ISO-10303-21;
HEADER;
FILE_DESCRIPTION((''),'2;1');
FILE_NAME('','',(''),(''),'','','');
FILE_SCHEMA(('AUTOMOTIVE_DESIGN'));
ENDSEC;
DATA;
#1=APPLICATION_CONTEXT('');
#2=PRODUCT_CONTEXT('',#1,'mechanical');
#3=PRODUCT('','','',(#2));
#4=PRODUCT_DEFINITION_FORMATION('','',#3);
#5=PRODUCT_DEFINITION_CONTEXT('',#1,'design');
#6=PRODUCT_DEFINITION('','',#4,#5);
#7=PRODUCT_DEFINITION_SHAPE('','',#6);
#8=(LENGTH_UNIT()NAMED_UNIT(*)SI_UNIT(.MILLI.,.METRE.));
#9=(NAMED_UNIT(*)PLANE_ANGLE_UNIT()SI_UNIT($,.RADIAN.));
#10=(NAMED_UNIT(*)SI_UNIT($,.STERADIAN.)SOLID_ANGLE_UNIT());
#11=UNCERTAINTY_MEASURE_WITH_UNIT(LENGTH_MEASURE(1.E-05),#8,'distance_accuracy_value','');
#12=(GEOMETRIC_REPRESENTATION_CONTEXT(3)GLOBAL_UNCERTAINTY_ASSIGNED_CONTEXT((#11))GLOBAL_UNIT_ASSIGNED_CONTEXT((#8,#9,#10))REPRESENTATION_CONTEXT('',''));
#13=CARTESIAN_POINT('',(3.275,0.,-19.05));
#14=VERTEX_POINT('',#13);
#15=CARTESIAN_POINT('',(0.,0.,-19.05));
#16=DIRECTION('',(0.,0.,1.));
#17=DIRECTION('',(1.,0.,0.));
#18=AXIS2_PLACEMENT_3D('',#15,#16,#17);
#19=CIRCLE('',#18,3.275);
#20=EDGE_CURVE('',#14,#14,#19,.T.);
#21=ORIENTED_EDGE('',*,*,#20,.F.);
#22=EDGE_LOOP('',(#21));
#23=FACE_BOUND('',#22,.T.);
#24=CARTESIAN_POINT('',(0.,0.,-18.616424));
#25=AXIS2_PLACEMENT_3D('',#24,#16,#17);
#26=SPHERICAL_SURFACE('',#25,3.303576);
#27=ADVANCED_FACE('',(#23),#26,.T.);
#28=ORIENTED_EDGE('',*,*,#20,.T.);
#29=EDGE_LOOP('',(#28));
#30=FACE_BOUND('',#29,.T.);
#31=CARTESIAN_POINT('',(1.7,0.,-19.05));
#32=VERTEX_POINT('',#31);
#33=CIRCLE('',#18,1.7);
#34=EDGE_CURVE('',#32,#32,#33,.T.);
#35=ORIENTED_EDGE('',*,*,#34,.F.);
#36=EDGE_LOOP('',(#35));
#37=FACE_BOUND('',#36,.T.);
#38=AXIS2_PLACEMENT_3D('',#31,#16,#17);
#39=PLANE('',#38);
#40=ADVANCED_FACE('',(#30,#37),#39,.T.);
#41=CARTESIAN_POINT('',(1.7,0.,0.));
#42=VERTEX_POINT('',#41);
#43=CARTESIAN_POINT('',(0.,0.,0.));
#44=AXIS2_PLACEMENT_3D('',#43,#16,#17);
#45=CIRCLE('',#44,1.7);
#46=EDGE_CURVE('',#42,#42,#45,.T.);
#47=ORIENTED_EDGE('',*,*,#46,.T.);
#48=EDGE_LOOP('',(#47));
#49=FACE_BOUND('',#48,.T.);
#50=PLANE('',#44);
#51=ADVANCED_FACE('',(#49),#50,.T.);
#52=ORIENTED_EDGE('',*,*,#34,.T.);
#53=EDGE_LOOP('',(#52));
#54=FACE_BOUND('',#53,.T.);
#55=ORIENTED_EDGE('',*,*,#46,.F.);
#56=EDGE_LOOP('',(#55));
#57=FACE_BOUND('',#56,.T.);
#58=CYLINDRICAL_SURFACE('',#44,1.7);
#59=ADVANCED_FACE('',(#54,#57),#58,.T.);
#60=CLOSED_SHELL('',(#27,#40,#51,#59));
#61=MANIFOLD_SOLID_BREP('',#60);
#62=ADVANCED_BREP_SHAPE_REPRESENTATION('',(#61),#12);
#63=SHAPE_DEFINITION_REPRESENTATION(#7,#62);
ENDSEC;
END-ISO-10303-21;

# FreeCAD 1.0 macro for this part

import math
import FreeCAD as App
import Part
import Sketcher

V = App.Vector

doc = App.newDocument("Part")
params = doc.addObject("Spreadsheet::Sheet", "Params")
for row, (alias, value) in enumerate([
    ("sketch1_width", "1.7 mm"),
    ("sketch1_height", "21.92 mm"),
    ("sketch1_height2", "19.05 mm"),
    ("revolution_angle", "360 deg"),
], start=1):
    params.set(f"A{row}", alias)
    params.set(f"B{row}", "=" + value)
    params.setAlias(f"B{row}", alias)

body = doc.addObject("PartDesign::Body", "Body")

# Sketch on XZ plane
sketch1 = doc.addObject("Sketcher::SketchObject", "Sketch")
body.addObject(sketch1)
sketch1.AttachmentSupport = (doc.XZ_Plane, [""])
sketch1.MapMode = "FlatFace"
sketch1.addGeometry(Part.LineSegment(V(0, -21.92, 0), V(0, 0, 0)), False)
sketch1.addGeometry(Part.LineSegment(V(0, 0, 0), V(1.7, 0, 0)), False)
sketch1.addGeometry(Part.LineSegment(V(1.7, 0, 0), V(1.7, -19.05, 0)), False)
sketch1.addGeometry(Part.LineSegment(V(1.7, -19.05, 0), V(3.275, -19.05, 0)), False)
sketch1.addGeometry(Part.ArcOfCircle(Part.Circle(V(0, -18.616424, 0), V(0, 0, 1), 3.303576), math.radians(-90), math.radians(-7.541507)), False)
sketch1.addConstraint(Sketcher.Constraint("Coincident", 0, 2, 1, 1))
sketch1.addConstraint(Sketcher.Constraint("Coincident", 1, 2, 2, 1))
sketch1.addConstraint(Sketcher.Constraint("Coincident", 2, 2, 3, 1))
sketch1.addConstraint(Sketcher.Constraint("Coincident", 3, 2, 4, 2))
sketch1.addConstraint(Sketcher.Constraint("Coincident", 4, 1, 0, 1))
sketch1.addConstraint(Sketcher.Constraint("Vertical", 0))
sketch1.addConstraint(Sketcher.Constraint("Horizontal", 1))
sketch1.addConstraint(Sketcher.Constraint("Vertical", 2))
sketch1.addConstraint(Sketcher.Constraint("Horizontal", 3))
sketch1.addConstraint(Sketcher.Constraint("Coincident", 0, 2, -1, 1))
sketch1.addConstraint(Sketcher.Constraint("PointOnObject", 4, 3, -2))
sketch1.addConstraint(Sketcher.Constraint("DistanceX", 1, 1, 1, 2, 1.7))
sketch1.addConstraint(Sketcher.Constraint("DistanceY", 0, 1, 0, 2, 21.92))
sketch1.addConstraint(Sketcher.Constraint("DistanceY", 2, 2, 2, 1, 19.05))
sketch1.addConstraint(Sketcher.Constraint("DistanceX", 3, 1, 3, 2, 1.575))
sketch1.setExpression("Constraints[11]", "Params.sketch1_width")
sketch1.setExpression("Constraints[12]", "Params.sketch1_height")
sketch1.setExpression("Constraints[13]", "Params.sketch1_height2")
revolution = doc.addObject("PartDesign::Revolution", "Revolution")
body.addObject(revolution)
revolution.Profile = sketch1
revolution.ReferenceAxis = (sketch1, ["V_Axis"])
revolution.setExpression("Angle", "Params.revolution_angle")

doc.recompute()
